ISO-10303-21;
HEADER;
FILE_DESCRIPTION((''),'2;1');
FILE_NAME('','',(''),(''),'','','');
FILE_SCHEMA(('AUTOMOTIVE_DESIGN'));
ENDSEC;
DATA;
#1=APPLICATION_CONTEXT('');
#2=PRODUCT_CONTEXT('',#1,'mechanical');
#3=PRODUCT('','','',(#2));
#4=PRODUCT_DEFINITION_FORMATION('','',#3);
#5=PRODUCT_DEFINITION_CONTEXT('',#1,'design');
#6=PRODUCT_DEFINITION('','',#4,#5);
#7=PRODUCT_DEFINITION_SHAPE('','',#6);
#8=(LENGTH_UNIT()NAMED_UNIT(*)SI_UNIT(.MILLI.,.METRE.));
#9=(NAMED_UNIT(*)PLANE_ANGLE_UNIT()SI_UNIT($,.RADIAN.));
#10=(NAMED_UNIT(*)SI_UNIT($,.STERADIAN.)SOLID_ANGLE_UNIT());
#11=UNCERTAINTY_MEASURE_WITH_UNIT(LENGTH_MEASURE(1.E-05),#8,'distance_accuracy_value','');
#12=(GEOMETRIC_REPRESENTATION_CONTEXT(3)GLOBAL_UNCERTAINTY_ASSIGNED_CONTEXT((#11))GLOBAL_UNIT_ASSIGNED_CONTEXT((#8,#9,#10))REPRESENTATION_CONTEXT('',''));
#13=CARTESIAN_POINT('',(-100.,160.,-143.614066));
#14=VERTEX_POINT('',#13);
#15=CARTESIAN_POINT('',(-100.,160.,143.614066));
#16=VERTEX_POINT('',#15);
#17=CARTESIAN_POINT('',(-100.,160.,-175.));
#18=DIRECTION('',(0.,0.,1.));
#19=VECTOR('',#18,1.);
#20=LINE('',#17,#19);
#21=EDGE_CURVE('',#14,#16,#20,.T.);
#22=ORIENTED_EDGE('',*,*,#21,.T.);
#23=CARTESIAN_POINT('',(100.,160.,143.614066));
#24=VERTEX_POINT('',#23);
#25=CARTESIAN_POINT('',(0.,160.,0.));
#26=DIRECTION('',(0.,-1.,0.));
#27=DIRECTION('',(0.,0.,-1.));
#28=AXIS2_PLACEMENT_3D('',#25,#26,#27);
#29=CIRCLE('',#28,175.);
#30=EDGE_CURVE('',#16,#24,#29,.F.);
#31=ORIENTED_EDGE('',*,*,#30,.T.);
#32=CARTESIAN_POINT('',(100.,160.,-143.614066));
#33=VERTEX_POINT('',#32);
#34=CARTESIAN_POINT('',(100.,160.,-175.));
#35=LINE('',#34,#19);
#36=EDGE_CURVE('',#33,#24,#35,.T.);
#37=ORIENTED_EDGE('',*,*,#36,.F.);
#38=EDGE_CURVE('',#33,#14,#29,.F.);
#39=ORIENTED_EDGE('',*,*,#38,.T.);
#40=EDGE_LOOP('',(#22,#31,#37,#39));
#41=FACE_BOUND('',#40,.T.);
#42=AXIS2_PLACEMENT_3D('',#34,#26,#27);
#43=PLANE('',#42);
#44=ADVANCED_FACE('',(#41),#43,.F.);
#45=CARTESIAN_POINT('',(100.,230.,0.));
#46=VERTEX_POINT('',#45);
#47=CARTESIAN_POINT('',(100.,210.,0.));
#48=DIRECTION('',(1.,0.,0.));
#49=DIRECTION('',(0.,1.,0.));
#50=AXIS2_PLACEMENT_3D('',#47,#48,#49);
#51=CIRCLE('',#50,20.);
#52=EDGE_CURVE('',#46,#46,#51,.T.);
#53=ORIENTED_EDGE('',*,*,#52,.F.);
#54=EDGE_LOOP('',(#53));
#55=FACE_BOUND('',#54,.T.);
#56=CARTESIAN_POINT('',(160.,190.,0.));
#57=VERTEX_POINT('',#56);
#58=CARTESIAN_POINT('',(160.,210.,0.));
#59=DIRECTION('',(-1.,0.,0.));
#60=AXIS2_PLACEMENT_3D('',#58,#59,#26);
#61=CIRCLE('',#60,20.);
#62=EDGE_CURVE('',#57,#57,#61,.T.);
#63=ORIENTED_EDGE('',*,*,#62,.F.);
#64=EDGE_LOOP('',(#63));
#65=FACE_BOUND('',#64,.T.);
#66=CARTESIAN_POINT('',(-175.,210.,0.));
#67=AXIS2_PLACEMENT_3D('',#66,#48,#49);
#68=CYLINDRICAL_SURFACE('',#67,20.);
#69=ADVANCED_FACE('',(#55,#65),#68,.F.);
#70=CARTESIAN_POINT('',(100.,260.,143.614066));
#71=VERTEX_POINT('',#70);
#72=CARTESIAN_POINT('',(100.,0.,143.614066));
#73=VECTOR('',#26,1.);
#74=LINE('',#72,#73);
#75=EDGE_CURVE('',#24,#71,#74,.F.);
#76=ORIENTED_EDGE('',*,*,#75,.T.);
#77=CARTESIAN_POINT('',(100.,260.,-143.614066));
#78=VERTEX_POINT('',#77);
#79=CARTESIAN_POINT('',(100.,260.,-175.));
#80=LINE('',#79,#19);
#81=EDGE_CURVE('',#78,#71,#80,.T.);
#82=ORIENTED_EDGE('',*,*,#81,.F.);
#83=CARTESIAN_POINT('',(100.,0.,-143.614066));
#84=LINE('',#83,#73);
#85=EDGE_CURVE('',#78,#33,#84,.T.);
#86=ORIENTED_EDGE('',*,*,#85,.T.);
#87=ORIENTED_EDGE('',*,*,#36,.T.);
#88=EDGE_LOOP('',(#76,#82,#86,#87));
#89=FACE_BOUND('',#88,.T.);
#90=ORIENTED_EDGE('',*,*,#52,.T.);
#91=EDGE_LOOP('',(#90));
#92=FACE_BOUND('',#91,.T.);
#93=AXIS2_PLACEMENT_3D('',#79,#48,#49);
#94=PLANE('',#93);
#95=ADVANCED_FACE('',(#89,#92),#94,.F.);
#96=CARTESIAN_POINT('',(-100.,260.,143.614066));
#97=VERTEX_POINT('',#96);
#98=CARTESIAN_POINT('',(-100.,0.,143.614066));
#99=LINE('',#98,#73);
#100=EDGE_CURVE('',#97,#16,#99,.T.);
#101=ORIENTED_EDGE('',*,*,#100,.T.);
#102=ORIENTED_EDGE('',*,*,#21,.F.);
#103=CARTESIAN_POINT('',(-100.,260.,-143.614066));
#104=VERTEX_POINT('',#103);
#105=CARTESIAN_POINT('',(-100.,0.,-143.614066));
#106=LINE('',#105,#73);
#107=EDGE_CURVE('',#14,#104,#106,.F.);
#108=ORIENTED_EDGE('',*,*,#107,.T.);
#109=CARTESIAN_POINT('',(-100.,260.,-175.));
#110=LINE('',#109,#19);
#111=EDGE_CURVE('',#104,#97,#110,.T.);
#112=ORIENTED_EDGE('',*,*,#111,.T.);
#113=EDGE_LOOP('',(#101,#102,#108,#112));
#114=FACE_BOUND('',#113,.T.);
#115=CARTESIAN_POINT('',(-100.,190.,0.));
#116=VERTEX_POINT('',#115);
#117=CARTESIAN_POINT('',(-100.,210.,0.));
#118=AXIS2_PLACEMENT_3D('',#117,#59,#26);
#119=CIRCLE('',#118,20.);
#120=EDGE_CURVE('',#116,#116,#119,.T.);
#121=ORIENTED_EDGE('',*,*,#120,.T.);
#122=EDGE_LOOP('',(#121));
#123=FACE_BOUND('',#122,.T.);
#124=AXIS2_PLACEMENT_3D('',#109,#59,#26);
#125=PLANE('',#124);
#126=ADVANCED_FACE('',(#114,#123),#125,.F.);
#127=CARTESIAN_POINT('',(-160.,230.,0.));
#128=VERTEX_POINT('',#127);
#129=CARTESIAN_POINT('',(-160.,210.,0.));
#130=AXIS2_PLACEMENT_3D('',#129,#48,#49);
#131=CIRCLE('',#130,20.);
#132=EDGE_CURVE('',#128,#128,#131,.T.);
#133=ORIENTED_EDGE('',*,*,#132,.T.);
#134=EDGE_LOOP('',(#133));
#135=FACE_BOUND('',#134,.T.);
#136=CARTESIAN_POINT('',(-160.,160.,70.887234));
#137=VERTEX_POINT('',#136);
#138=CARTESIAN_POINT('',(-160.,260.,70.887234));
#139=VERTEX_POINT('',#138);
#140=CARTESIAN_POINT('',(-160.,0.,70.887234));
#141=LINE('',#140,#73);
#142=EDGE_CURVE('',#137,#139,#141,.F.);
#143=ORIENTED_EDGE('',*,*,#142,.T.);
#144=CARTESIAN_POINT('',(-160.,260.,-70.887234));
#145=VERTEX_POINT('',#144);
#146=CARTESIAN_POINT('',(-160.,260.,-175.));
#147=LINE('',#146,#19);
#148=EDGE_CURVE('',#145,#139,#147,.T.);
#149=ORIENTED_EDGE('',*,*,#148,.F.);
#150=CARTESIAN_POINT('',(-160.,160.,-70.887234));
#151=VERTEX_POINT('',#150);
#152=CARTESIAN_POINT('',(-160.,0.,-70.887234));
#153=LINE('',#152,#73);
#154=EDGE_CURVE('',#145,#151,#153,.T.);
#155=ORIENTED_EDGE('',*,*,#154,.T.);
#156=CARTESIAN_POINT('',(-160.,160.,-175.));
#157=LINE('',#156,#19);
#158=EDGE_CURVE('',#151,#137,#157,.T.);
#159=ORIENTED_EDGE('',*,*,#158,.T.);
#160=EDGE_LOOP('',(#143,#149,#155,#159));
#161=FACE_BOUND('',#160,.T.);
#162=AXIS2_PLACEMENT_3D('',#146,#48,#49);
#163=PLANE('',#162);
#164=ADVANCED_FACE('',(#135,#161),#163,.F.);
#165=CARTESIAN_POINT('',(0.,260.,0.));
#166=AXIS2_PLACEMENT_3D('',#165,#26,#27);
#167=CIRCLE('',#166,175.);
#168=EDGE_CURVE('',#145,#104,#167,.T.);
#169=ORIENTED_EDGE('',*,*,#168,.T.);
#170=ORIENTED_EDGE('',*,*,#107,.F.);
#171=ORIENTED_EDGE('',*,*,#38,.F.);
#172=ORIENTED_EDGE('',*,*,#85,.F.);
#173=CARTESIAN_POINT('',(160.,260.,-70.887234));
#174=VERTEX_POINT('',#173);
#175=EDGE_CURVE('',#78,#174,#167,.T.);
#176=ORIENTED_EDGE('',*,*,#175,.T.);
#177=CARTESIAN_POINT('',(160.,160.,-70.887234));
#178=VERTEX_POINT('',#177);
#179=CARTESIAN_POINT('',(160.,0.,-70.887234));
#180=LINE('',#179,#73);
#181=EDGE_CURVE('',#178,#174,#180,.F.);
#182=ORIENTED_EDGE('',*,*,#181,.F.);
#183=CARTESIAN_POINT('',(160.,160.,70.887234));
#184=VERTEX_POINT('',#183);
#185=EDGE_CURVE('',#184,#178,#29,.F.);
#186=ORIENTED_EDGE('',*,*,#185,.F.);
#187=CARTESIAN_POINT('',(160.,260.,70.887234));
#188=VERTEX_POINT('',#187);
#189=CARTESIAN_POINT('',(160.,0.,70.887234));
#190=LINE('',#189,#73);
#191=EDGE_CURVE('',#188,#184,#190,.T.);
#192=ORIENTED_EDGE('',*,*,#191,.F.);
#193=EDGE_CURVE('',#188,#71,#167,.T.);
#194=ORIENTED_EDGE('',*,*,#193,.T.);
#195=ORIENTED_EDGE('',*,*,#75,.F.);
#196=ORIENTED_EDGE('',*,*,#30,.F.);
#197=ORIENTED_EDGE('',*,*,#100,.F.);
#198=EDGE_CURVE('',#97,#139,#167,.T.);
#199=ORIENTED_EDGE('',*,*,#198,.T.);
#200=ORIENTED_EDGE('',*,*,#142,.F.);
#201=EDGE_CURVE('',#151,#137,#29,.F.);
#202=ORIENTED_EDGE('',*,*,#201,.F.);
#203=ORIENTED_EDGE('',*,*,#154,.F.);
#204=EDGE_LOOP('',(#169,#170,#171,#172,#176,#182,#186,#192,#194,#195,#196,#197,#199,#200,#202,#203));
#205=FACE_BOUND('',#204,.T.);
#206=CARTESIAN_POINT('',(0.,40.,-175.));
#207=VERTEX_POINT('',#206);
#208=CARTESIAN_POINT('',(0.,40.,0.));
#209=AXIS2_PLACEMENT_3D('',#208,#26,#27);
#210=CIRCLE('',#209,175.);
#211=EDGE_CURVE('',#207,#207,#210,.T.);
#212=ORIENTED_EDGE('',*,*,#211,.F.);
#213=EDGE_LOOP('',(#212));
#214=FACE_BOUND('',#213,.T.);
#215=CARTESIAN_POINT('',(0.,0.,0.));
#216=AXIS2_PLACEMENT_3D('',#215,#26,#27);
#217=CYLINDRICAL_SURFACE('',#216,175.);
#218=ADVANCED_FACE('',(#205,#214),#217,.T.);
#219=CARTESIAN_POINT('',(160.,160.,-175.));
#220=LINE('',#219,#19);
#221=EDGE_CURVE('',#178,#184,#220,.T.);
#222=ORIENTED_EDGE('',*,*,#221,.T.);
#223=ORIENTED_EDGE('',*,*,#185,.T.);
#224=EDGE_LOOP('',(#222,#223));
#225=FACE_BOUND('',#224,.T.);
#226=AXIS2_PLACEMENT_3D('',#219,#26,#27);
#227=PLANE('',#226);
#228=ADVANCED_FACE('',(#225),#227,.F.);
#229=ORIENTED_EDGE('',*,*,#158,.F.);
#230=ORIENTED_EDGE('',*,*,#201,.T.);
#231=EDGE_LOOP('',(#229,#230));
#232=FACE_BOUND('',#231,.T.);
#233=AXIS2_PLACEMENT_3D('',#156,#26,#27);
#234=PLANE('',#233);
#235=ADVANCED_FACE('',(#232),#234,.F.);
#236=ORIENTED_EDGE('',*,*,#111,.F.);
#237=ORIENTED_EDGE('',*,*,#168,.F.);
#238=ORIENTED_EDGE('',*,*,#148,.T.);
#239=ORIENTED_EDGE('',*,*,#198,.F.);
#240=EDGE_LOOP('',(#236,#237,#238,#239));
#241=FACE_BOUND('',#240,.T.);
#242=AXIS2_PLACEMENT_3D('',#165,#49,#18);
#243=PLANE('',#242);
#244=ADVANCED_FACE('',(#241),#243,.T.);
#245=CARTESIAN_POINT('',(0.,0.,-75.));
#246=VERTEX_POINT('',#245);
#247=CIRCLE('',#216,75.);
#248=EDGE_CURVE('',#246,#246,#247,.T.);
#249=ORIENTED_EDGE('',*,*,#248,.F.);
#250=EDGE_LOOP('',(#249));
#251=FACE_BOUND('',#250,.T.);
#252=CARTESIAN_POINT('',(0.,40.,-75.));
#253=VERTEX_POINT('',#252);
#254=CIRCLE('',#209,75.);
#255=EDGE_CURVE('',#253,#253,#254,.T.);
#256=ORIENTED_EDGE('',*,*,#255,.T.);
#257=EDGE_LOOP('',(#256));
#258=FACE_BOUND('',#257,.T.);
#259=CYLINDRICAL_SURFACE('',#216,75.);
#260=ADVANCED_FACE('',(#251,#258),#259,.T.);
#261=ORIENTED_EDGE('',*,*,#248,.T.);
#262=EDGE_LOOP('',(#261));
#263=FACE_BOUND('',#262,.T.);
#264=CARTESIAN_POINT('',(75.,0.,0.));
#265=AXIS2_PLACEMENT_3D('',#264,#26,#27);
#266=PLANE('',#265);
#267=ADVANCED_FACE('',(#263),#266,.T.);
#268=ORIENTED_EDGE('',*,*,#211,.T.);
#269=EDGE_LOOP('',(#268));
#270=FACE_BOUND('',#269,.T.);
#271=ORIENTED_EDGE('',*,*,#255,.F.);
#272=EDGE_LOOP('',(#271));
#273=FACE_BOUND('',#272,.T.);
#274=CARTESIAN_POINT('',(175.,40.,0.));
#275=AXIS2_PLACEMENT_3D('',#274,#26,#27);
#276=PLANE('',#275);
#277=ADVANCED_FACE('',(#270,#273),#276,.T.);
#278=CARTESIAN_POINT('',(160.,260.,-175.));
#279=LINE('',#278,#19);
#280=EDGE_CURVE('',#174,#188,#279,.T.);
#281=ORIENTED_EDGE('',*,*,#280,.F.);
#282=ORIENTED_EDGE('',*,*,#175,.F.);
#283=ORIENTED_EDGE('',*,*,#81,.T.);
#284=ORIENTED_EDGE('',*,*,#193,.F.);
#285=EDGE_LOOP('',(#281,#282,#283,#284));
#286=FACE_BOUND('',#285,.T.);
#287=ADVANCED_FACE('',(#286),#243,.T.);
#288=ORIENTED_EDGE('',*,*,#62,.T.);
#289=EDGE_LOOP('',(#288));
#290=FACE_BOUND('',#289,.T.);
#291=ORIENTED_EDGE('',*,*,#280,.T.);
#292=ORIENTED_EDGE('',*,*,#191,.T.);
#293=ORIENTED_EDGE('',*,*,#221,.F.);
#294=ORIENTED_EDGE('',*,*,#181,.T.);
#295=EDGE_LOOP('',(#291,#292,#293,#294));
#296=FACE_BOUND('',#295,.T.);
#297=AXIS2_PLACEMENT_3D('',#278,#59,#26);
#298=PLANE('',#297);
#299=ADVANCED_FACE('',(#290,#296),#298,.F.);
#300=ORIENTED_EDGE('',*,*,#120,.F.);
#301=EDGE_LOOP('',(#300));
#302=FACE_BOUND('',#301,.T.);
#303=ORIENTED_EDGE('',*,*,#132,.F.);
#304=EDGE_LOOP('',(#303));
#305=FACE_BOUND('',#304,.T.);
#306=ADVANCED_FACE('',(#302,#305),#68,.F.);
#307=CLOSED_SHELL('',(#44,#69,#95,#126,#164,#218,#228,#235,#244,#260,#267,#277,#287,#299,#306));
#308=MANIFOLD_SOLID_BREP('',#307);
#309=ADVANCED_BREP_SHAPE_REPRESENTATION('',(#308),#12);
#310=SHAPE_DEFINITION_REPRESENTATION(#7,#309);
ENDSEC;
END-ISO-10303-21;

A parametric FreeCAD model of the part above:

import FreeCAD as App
import Part
import Sketcher
from FreeCAD import Vector

doc = App.newDocument("Part")
body = doc.addObject("PartDesign::Body", "Body")

sketch1 = body.newObject("Sketcher::SketchObject", "Sketch")
sketch1.AttachmentSupport = (doc.getObject("XY_Plane"), [""])
sketch1.MapMode = "FlatFace"
sketch1.addGeometry([
    Part.LineSegment(Vector(175, 260, 0), Vector(0, 260, 0)),
    Part.LineSegment(Vector(0, 260, 0), Vector(0, 0, 0)),
    Part.LineSegment(Vector(0, 0, 0), Vector(75, 0, 0)),
    Part.LineSegment(Vector(75, 0, 0), Vector(75, 40, 0)),
    Part.LineSegment(Vector(75, 40, 0), Vector(175, 40, 0)),
    Part.LineSegment(Vector(175, 40, 0), Vector(175, 260, 0)),
], False)
sketch1.addConstraint([
    Sketcher.Constraint("Coincident", 0, 2, 1, 1),
    Sketcher.Constraint("Coincident", 1, 2, 2, 1),
    Sketcher.Constraint("Coincident", 2, 2, 3, 1),
    Sketcher.Constraint("Coincident", 3, 2, 4, 1),
    Sketcher.Constraint("Coincident", 4, 2, 5, 1),
    Sketcher.Constraint("Coincident", 5, 2, 0, 1),
    Sketcher.Constraint("Horizontal", 0),
    Sketcher.Constraint("Vertical", 1),
    Sketcher.Constraint("Horizontal", 2),
    Sketcher.Constraint("Vertical", 3),
    Sketcher.Constraint("Horizontal", 4),
    Sketcher.Constraint("Vertical", 5),
    Sketcher.Constraint("Coincident", 1, 2, -1, 1),
    Sketcher.Constraint("DistanceX", 0, 2, 0, 1, 175.0),
    Sketcher.Constraint("DistanceX", 2, 1, 2, 2, 75.0),
    Sketcher.Constraint("DistanceY", 1, 2, 1, 1, 260.0),
    Sketcher.Constraint("DistanceY", 3, 1, 3, 2, 40.0),
])
revolution = body.newObject("PartDesign::Revolution", "Revolution")
revolution.Profile = sketch1
revolution.ReferenceAxis = (sketch1, ["V_Axis"])
revolution.Angle = 360

sketch2 = body.newObject("Sketcher::SketchObject", "Sketch001")
sketch2.AttachmentSupport = (doc.getObject("XY_Plane"), [""])
sketch2.MapMode = "FlatFace"
sketch2.addGeometry([
    Part.LineSegment(Vector(-100, 260, 0), Vector(-100, 160, 0)),
    Part.LineSegment(Vector(-100, 160, 0), Vector(100, 160, 0)),
    Part.LineSegment(Vector(100, 160, 0), Vector(100, 260, 0)),
    Part.LineSegment(Vector(100, 260, 0), Vector(-100, 260, 0)),
    Part.LineSegment(Vector(160, 260, 0), Vector(160, 160, 0)),
    Part.LineSegment(Vector(160, 160, 0), Vector(175, 160, 0)),
    Part.LineSegment(Vector(175, 160, 0), Vector(175, 260, 0)),
    Part.LineSegment(Vector(175, 260, 0), Vector(160, 260, 0)),
    Part.LineSegment(Vector(-175, 260, 0), Vector(-175, 160, 0)),
    Part.LineSegment(Vector(-175, 160, 0), Vector(-160, 160, 0)),
    Part.LineSegment(Vector(-160, 160, 0), Vector(-160, 260, 0)),
    Part.LineSegment(Vector(-160, 260, 0), Vector(-175, 260, 0)),
], False)
sketch2.addConstraint([
    Sketcher.Constraint("Coincident", 0, 2, 1, 1),
    Sketcher.Constraint("Coincident", 1, 2, 2, 1),
    Sketcher.Constraint("Coincident", 2, 2, 3, 1),
    Sketcher.Constraint("Coincident", 3, 2, 0, 1),
    Sketcher.Constraint("Coincident", 4, 2, 5, 1),
    Sketcher.Constraint("Coincident", 5, 2, 6, 1),
    Sketcher.Constraint("Coincident", 6, 2, 7, 1),
    Sketcher.Constraint("Coincident", 7, 2, 4, 1),
    Sketcher.Constraint("Coincident", 8, 2, 9, 1),
    Sketcher.Constraint("Coincident", 9, 2, 10, 1),
    Sketcher.Constraint("Coincident", 10, 2, 11, 1),
    Sketcher.Constraint("Coincident", 11, 2, 8, 1),
    Sketcher.Constraint("Vertical", 0),
    Sketcher.Constraint("Horizontal", 1),
    Sketcher.Constraint("Vertical", 2),
    Sketcher.Constraint("Horizontal", 3),
    Sketcher.Constraint("Vertical", 4),
    Sketcher.Constraint("Horizontal", 5),
    Sketcher.Constraint("Vertical", 6),
    Sketcher.Constraint("Horizontal", 7),
    Sketcher.Constraint("Vertical", 8),
    Sketcher.Constraint("Horizontal", 9),
    Sketcher.Constraint("Vertical", 10),
    Sketcher.Constraint("Horizontal", 11),
    Sketcher.Constraint("Symmetric", 5, 2, 8, 2, -2),
    Sketcher.Constraint("Symmetric", 7, 2, 10, 2, -2),
    Sketcher.Constraint("Horizontal", 1, 2, 4, 2),
    Sketcher.Constraint("Horizontal", 3, 2, 6, 2),
    Sketcher.Constraint("DistanceX", 1, 1, 1, 2, 200.0),
    Sketcher.Constraint("DistanceX", 5, 1, 5, 2, 15.0),
    Sketcher.Constraint("DistanceY", 0, 2, 0, 1, 100.0),
    Sketcher.Constraint("DistanceX", 0, 2, -1, 1, 100.0),
    Sketcher.Constraint("DistanceY", -1, 1, 0, 2, 160.0),
    Sketcher.Constraint("DistanceX", -1, 1, 4, 2, 160.0),
])
pocket1 = body.newObject("PartDesign::Pocket", "Pocket")
pocket1.Profile = sketch2
pocket1.Type = "ThroughAll"
pocket1.Midplane = True

sketch3 = body.newObject("Sketcher::SketchObject", "Sketch002")
sketch3.AttachmentSupport = (doc.getObject("YZ_Plane"), [""])
sketch3.MapMode = "FlatFace"
sketch3.AttachmentOffset = App.Placement(Vector(0, 0, 160), App.Rotation())
sketch3.addGeometry(Part.Circle(Vector(210, 0, 0), Vector(0, 0, 1), 20), False)
sketch3.addConstraint([
    Sketcher.Constraint("PointOnObject", 0, 3, -1),
    Sketcher.Constraint("Diameter", 0, 40.0),
    Sketcher.Constraint("DistanceX", -1, 1, 0, 3, 210.0),
])
pocket2 = body.newObject("PartDesign::Pocket", "Pocket001")
pocket2.Profile = sketch3
pocket2.Type = "ThroughAll"
pocket2.Midplane = True

doc.recompute()
